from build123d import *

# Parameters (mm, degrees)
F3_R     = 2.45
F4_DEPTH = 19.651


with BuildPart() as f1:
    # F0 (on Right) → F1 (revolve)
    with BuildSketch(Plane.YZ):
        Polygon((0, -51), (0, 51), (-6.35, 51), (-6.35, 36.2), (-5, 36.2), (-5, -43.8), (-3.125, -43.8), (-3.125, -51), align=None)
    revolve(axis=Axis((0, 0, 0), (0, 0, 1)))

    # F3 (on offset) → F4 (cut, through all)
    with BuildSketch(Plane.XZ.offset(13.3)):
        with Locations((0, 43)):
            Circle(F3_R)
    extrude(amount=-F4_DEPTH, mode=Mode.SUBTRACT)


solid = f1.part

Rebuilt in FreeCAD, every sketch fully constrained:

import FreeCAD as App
import Part
import Sketcher
from FreeCAD import Vector


def add_polygon(sketch, points):
    """Adds a closed chain of lines whose ends are joined by coincident constraints."""
    first, n = sketch.GeometryCount, len(points)
    for a, b in zip(points, points[1:] + points[:1]):
        sketch.addGeometry(Part.LineSegment(App.Vector(*a, 0), App.Vector(*b, 0)), False)
    for i in range(n):
        sketch.addConstraint(Sketcher.Constraint("Coincident", first + i, 2, first + (i + 1) % n, 1))

doc = App.newDocument("Part")
body = doc.addObject("PartDesign::Body", "Body")

# Sketch on YZ plane
sketch1 = body.newObject("Sketcher::SketchObject", "Sketch")
sketch1.AttachmentSupport = (doc.getObject("YZ_Plane"), [""])
sketch1.MapMode = "FlatFace"
add_polygon(sketch1, [(0, -51), (0, 51), (-6.35, 51), (-6.35, 36.2), (-5, 36.2), (-5, -43.8), (-3.125, -43.8), (-3.125, -51)])  # lines 0-7
sketch1.addConstraint([
    Sketcher.Constraint("Vertical", 0),
    Sketcher.Constraint("Horizontal", 1),
    Sketcher.Constraint("Vertical", 2),
    Sketcher.Constraint("Horizontal", 3),
    Sketcher.Constraint("Vertical", 4),
    Sketcher.Constraint("Horizontal", 5),
    Sketcher.Constraint("Vertical", 6),
    Sketcher.Constraint("Horizontal", 7),
    Sketcher.Constraint("Symmetric", 0, 2, 7, 2, -1, 1),
    Sketcher.Constraint("DistanceY", 0, 1, 0, 2, 102.0),
    Sketcher.Constraint("DistanceY", 4, 2, 4, 1, 80.0),
    Sketcher.Constraint("DistanceY", 2, 2, 2, 1, 14.8),
    Sketcher.Constraint("DistanceX", 3, 2, -1, 1, 5.0),
    Sketcher.Constraint("DistanceX", 1, 2, 1, 1, 6.35),
    Sketcher.Constraint("DistanceX", 5, 1, 5, 2, 1.875),
])
revolution = body.newObject("PartDesign::Revolution", "Revolution")
revolution.Profile = sketch1
revolution.ReferenceAxis = (sketch1, ["V_Axis"])
revolution.Angle = 360

# Sketch on XZ plane
sketch2 = body.newObject("Sketcher::SketchObject", "Sketch001")
sketch2.AttachmentSupport = (doc.getObject("XZ_Plane"), [""])
sketch2.MapMode = "FlatFace"
sketch2.AttachmentOffset = App.Placement(Vector(0, 0, 13.3), App.Rotation())
sketch2.addGeometry(Part.Circle(Vector(0, 43, 0), Vector(0, 0, 1), 2.45), False)
sketch2.addConstraint([
    Sketcher.Constraint("PointOnObject", 0, 3, -2),
    Sketcher.Constraint("Diameter", 0, 4.9),
    Sketcher.Constraint("DistanceY", -1, 1, 0, 3, 43.0),
])
pocket1 = body.newObject("PartDesign::Pocket", "Pocket")
pocket1.Profile = sketch2
pocket1.Type = "ThroughAll"

doc.recompute()
